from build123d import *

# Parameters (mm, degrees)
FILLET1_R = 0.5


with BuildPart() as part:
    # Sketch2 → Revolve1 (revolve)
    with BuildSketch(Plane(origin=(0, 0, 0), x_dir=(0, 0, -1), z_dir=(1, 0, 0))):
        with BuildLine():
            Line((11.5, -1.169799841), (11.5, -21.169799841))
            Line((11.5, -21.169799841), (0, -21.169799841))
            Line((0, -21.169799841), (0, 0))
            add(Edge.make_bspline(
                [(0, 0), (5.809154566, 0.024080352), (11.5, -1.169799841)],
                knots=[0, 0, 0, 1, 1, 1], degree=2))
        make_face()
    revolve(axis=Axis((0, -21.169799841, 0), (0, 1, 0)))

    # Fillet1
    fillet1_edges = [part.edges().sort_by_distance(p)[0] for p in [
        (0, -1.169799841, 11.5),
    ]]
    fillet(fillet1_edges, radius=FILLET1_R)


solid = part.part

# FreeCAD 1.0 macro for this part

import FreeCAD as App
import Part
import Sketcher
from FreeCAD import Vector


def edges_at(feature, points):
    """Names of the edges that pass closest to the given points."""
    edges = feature.Shape.Edges
    near = lambda p: min(range(len(edges)), key=lambda i: edges[i].distToShape(Part.Vertex(*p))[0])
    return sorted({f"Edge{near(p) + 1}" for p in points})

doc = App.newDocument("Part")
body = doc.addObject("PartDesign::Body", "Body")

sketch1 = body.newObject("Sketcher::SketchObject", "Sketch")
sketch1.AttachmentSupport = (doc.getObject("YZ_Plane"), [""])
sketch1.MapMode = "FlatFace"
sketch1.addGeometry([
    Part.LineSegment(Vector(-21.1698, -11.5, 0), Vector(-1.1698, -11.5, 0)),
    Part.BSplineCurve([Vector(0, 0, 0), Vector(0.02408, -5.809155, 0), Vector(-1.1698, -11.5, 0)], [3, 3], [0, 1], False, 2, [1, 1, 1], False),
    Part.LineSegment(Vector(0, 0, 0), Vector(-21.1698, 0, 0)),
    Part.LineSegment(Vector(-21.1698, 0, 0), Vector(-21.1698, -11.5, 0)),
], False)
sketch1.addConstraint([
    Sketcher.Constraint("Block", 1),
    Sketcher.Constraint("Coincident", 0, 2, 1, 2),
    Sketcher.Constraint("Coincident", 1, 1, 2, 1),
    Sketcher.Constraint("Coincident", 2, 2, 3, 1),
    Sketcher.Constraint("Coincident", 3, 2, 0, 1),
    Sketcher.Constraint("Horizontal", 0),
    Sketcher.Constraint("Horizontal", 2),
    Sketcher.Constraint("Vertical", 3),
    Sketcher.Constraint("DistanceX", 0, 1, 0, 2, 20.0),
])
revolution = body.newObject("PartDesign::Revolution", "Revolution")
revolution.Profile = sketch1
revolution.ReferenceAxis = (sketch1, ["H_Axis"])
revolution.Angle = 360
doc.recompute()

fillet = body.newObject("PartDesign::Fillet", "Fillet")
fillet.Base = (revolution, edges_at(revolution, [(0, -1.17, 11.5)]))
fillet.Radius = 0.5

doc.recompute()
